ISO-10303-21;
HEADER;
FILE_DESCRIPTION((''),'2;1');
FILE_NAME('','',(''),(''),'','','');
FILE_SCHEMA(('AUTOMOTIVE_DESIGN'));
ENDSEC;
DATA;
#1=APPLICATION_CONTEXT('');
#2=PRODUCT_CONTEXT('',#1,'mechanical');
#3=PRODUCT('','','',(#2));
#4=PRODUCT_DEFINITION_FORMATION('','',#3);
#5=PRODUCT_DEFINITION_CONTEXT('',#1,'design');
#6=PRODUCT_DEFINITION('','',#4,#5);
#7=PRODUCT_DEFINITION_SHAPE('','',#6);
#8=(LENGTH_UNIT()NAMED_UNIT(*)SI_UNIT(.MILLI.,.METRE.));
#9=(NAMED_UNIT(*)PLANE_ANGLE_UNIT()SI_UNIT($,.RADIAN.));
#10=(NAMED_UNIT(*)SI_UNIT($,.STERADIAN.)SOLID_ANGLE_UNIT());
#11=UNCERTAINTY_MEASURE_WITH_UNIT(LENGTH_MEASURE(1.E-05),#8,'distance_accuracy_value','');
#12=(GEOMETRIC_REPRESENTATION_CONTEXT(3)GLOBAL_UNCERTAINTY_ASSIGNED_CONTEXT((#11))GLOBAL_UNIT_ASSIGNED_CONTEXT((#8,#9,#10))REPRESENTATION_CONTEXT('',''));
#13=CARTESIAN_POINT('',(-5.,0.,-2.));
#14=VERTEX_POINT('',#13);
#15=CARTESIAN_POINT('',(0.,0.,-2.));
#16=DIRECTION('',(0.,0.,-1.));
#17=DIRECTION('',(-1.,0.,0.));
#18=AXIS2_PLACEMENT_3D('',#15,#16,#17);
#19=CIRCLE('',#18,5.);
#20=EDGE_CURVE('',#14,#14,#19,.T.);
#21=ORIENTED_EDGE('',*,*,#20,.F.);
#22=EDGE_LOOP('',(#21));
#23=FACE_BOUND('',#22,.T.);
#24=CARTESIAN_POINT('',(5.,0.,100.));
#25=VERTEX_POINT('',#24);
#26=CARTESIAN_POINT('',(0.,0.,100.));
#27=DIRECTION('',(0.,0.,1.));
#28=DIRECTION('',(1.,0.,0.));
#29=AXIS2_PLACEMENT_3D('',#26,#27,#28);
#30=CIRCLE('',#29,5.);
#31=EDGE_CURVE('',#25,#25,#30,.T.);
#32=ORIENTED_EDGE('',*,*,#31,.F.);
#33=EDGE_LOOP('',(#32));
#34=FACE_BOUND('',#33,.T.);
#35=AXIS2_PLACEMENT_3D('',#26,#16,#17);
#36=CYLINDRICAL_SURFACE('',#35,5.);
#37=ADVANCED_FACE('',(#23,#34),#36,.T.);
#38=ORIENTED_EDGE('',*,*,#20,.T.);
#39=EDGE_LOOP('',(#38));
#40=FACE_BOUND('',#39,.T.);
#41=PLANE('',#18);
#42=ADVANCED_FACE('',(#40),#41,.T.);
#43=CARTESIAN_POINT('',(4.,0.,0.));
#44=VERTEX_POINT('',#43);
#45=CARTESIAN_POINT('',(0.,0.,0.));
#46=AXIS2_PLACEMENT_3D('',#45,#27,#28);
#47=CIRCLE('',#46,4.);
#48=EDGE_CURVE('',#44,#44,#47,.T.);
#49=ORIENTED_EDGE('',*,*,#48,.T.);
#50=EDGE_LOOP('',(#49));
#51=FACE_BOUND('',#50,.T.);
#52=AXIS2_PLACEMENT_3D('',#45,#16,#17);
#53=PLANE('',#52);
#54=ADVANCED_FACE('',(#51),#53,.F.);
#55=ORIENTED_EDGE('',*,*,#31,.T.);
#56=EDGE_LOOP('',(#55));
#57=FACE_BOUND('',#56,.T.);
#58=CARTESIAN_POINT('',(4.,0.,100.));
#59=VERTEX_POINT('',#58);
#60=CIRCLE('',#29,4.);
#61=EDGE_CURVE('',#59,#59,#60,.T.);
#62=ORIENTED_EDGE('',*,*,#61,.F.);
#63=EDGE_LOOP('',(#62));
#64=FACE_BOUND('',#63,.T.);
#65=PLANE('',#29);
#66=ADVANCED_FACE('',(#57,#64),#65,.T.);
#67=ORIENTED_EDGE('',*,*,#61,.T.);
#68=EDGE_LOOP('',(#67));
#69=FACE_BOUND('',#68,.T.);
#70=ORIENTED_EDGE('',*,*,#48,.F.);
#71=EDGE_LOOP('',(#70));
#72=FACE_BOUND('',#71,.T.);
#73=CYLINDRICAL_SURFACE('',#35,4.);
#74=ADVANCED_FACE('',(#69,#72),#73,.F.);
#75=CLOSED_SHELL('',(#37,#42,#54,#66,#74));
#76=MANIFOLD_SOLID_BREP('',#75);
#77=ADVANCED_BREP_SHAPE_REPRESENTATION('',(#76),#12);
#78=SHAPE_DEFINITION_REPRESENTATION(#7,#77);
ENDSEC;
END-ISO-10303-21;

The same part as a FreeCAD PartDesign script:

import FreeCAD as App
import Part
import Sketcher

doc = App.newDocument("Part")
body = doc.addObject("PartDesign::Body", "Body")

# Sketch on XY plane
sketch1 = body.newObject("Sketcher::SketchObject", "Sketch")
sketch1.AttachmentSupport = (doc.getObject("XY_Plane"), [""])
sketch1.MapMode = "FlatFace"
sketch1.addGeometry(Part.Circle(App.Vector(0, 0, 0), App.Vector(0, 0, 1), 5), False)
sketch1.addGeometry(Part.Circle(App.Vector(0, 0, 0), App.Vector(0, 0, 1), 4), False)
sketch1.addConstraint(Sketcher.Constraint("Coincident", 0, 3, -1, 1))
sketch1.addConstraint(Sketcher.Constraint("Coincident", 1, 3, -1, 1))
sketch1.addConstraint(Sketcher.Constraint("Diameter", 0, 10.0))
sketch1.addConstraint(Sketcher.Constraint("Diameter", 1, 8.0))
pad1 = body.newObject("PartDesign::Pad", "Pad")
pad1.Profile = sketch1
pad1.Length = 100

# Sketch on XY plane
sketch2 = body.newObject("Sketcher::SketchObject", "Sketch001")
sketch2.AttachmentSupport = (doc.getObject("XY_Plane"), [""])
sketch2.MapMode = "FlatFace"
sketch2.AttachmentOffset = App.Placement(App.Vector(0, 0, -2), App.Rotation())
sketch2.addGeometry(Part.Circle(App.Vector(0, 0, 0), App.Vector(0, 0, 1), 5), False)
sketch2.addConstraint(Sketcher.Constraint("Coincident", 0, 3, -1, 1))
sketch2.addConstraint(Sketcher.Constraint("Diameter", 0, 10.0))
pad2 = body.newObject("PartDesign::Pad", "Pad001")
pad2.Profile = sketch2
pad2.Length = 2

doc.recompute()
